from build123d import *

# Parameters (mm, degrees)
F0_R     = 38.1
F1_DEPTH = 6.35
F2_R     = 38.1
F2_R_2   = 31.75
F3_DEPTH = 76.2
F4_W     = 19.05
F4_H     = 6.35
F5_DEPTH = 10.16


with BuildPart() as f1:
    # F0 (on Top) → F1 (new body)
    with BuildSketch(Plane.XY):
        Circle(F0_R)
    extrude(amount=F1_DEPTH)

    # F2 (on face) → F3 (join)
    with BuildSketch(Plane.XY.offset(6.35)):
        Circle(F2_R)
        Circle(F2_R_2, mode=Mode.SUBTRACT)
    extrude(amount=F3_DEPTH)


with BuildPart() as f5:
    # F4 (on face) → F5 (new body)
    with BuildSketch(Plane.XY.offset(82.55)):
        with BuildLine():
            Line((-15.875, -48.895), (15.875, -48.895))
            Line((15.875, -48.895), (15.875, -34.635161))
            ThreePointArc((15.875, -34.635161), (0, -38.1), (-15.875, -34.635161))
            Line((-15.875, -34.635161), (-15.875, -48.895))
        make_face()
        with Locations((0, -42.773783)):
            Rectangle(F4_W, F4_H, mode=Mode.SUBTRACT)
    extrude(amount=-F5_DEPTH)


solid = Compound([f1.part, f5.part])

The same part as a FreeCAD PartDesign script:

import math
import FreeCAD as App
import Part
import Sketcher
from FreeCAD import Vector
Q = App.Units.Quantity

doc = App.newDocument("Part")
params = doc.addObject("Spreadsheet::Sheet", "Params")
for row, (alias, value) in enumerate([
    ("sketch1_diameter", "3 in"),
    ("pad1_length", "0.25 in"),
    ("sketch2_diameter", "3 in"),
    ("sketch2_diameter2", "2.5 in"),
    ("pad2_length", "3 in"),
    ("sketch3_radius", "1.5 in"),
    ("sketch3_width", "1.25 in"),
    ("sketch3_height", "0.25 in"),
    ("pad3_length", "0.4 in"),
], start=1):
    params.set(f"A{row}", alias)
    params.set(f"B{row}", "=" + value)
    params.setAlias(f"B{row}", alias)

body = doc.addObject("PartDesign::Body", "Body")

# Sketch on XY plane
sketch1 = doc.addObject("Sketcher::SketchObject", "Sketch")
body.addObject(sketch1)
sketch1.AttachmentSupport = (doc.XY_Plane, [""])
sketch1.MapMode = "FlatFace"
sketch1.addGeometry(Part.Circle(Vector(0, 0, 0), Vector(0, 0, 1), 38), False)
sketch1.addConstraint([
    Sketcher.Constraint("Coincident", 0, 3, -1, 1),
    Sketcher.Constraint("Diameter", 0, Q("3 in")),
])
sketch1.setExpression("Constraints[1]", "Params.sketch1_diameter")
pad1 = doc.addObject("PartDesign::Pad", "Pad")
body.addObject(pad1)
pad1.Profile = sketch1
pad1.setExpression("Length", "Params.pad1_length")

# Sketch on XY plane
sketch2 = doc.addObject("Sketcher::SketchObject", "Sketch001")
body.addObject(sketch2)
sketch2.AttachmentSupport = (doc.XY_Plane, [""])
sketch2.MapMode = "FlatFace"
sketch2.AttachmentOffset = App.Placement(Vector(0, 0, 0.25 * 25.4), App.Rotation())
sketch2.addGeometry([
    Part.Circle(Vector(0, 0, 0), Vector(0, 0, 1), 38),
    Part.Circle(Vector(0, 0, 0), Vector(0, 0, 1), 32),
], False)
sketch2.addConstraint([
    Sketcher.Constraint("Coincident", 0, 3, -1, 1),
    Sketcher.Constraint("Coincident", 1, 3, -1, 1),
    Sketcher.Constraint("Diameter", 0, Q("3 in")),
    Sketcher.Constraint("Diameter", 1, Q("2.5 in")),
])
sketch2.setExpression("Constraints[2]", "Params.sketch2_diameter")
sketch2.setExpression("Constraints[3]", "Params.sketch2_diameter2")
pad2 = doc.addObject("PartDesign::Pad", "Pad001")
body.addObject(pad2)
pad2.Profile = sketch2
pad2.setExpression("Length", "Params.pad2_length")
body2 = doc.addObject("PartDesign::Body", "Body001")

# Sketch on XY plane
sketch3 = doc.addObject("Sketcher::SketchObject", "Sketch002")
body2.addObject(sketch3)
sketch3.AttachmentSupport = (doc.getObject("XY_Plane001"), [""])
sketch3.MapMode = "FlatFace"
sketch3.AttachmentOffset = App.Placement(Vector(0, 0, 3.25 * 25.4), App.Rotation())
sketch3.addGeometry([
    Part.LineSegment(Vector(-16, -49, 0), Vector(16, -49, 0)),  # 0
    Part.LineSegment(Vector(16, -49, 0), Vector(16, -35, 0)),  # 1
    Part.ArcOfCircle(Part.Circle(Vector(0, 0, 0), Vector(0, 0, 1), 38), math.radians(-115), math.radians(-65)),  # 2
    Part.LineSegment(Vector(-16, -35, 0), Vector(-16, -49, 0)),  # 3
    Part.LineSegment(Vector(10, -46, 0), Vector(-10, -46, 0)),  # 4
    Part.LineSegment(Vector(-10, -46, 0), Vector(-10, -40, 0)),  # 5
    Part.LineSegment(Vector(-10, -40, 0), Vector(10, -40, 0)),  # 6
    Part.LineSegment(Vector(10, -40, 0), Vector(10, -46, 0)),  # 7
], False)
sketch3.addConstraint([
    Sketcher.Constraint("Coincident", 0, 2, 1, 1),
    Sketcher.Constraint("Coincident", 1, 2, 2, 2),
    Sketcher.Constraint("Coincident", 2, 1, 3, 1),
    Sketcher.Constraint("Coincident", 3, 2, 0, 1),
    Sketcher.Constraint("Coincident", 4, 2, 5, 1),
    Sketcher.Constraint("Coincident", 5, 2, 6, 1),
    Sketcher.Constraint("Coincident", 6, 2, 7, 1),
    Sketcher.Constraint("Coincident", 7, 2, 4, 1),
    Sketcher.Constraint("Horizontal", 0),
    Sketcher.Constraint("Vertical", 1),
    Sketcher.Constraint("Vertical", 3),
    Sketcher.Constraint("Horizontal", 4),
    Sketcher.Constraint("Vertical", 5),
    Sketcher.Constraint("Horizontal", 6),
    Sketcher.Constraint("Vertical", 7),
    Sketcher.Constraint("Coincident", 2, 3, -1, 1),
    Sketcher.Constraint("Horizontal", 1, 2, 2, 1),
    Sketcher.Constraint("Radius", 2, Q("1.5 in")),
    Sketcher.Constraint("DistanceX", 4, 2, 0, 2, Q("1 in")),
    Sketcher.Constraint("DistanceX", 2, 1, 6, 2, Q("1 in")),
    Sketcher.Constraint("DistanceX", 0, 1, 0, 2, Q("1.25 in")),
    Sketcher.Constraint("DistanceY", 5, 1, 5, 2, Q("0.25 in")),
    Sketcher.Constraint("DistanceY", 0, 2, -1, 1, Q("1.925 in")),
    Sketcher.Constraint("DistanceY", 4, 2, -1, 1, 45.948783),
])
sketch3.setExpression("Constraints[17]", "Params.sketch3_radius")
sketch3.setExpression("Constraints[20]", "Params.sketch3_width")
sketch3.setExpression("Constraints[21]", "Params.sketch3_height")
pad3 = doc.addObject("PartDesign::Pad", "Pad002")
body2.addObject(pad3)
pad3.Profile = sketch3
pad3.setExpression("Length", "Params.pad3_length")
pad3.Reversed = True

doc.recompute()
